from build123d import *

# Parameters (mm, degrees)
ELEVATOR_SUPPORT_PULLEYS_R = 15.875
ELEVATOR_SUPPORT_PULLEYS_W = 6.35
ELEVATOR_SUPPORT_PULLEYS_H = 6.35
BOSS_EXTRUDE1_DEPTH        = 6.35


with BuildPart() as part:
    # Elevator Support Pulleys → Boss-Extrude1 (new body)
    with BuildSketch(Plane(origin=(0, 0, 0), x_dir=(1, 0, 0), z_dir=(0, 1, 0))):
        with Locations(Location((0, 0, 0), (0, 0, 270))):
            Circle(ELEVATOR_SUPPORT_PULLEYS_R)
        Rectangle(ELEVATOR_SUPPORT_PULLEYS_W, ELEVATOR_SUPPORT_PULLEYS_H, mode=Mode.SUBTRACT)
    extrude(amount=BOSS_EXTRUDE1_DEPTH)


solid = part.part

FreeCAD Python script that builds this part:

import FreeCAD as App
import Part
import Sketcher

V = App.Vector
Q = App.Units.Quantity

doc = App.newDocument("Part")
body = doc.addObject("PartDesign::Body", "Body")

# Sketch on XZ plane
sketch1 = body.newObject("Sketcher::SketchObject", "Sketch")
sketch1.AttachmentSupport = (doc.getObject("XZ_Plane"), [""])
sketch1.MapMode = "FlatFace"
sketch1.addGeometry([
    Part.Circle(V(0, 0, 0), V(0, 0, 1), 16),  # 0
    Part.LineSegment(V(3, 3, 0), V(-3, 3, 0)),  # 1
    Part.LineSegment(V(-3, 3, 0), V(-3, -3, 0)),  # 2
    Part.LineSegment(V(-3, -3, 0), V(3, -3, 0)),  # 3
    Part.LineSegment(V(3, -3, 0), V(3, 3, 0)),  # 4
], False)
sketch1.addConstraint([
    Sketcher.Constraint("Coincident", 1, 2, 2, 1),
    Sketcher.Constraint("Coincident", 2, 2, 3, 1),
    Sketcher.Constraint("Coincident", 3, 2, 4, 1),
    Sketcher.Constraint("Coincident", 4, 2, 1, 1),
    Sketcher.Constraint("Horizontal", 1),
    Sketcher.Constraint("Vertical", 2),
    Sketcher.Constraint("Horizontal", 3),
    Sketcher.Constraint("Vertical", 4),
    Sketcher.Constraint("Coincident", 0, 3, -1, 1),
    Sketcher.Constraint("Symmetric", 1, 2, 3, 2, -1, 1),
    Sketcher.Constraint("Equal", 3, 2),
    Sketcher.Constraint("Diameter", 0, Q("1.25 in")),
    Sketcher.Constraint("DistanceX", 1, 2, 1, 1, Q("0.25 in")),
])
pad1 = body.newObject("PartDesign::Pad", "Pad")
pad1.Profile = sketch1
pad1.Length = Q("0.25 in")
pad1.Reversed = True

doc.recompute()
